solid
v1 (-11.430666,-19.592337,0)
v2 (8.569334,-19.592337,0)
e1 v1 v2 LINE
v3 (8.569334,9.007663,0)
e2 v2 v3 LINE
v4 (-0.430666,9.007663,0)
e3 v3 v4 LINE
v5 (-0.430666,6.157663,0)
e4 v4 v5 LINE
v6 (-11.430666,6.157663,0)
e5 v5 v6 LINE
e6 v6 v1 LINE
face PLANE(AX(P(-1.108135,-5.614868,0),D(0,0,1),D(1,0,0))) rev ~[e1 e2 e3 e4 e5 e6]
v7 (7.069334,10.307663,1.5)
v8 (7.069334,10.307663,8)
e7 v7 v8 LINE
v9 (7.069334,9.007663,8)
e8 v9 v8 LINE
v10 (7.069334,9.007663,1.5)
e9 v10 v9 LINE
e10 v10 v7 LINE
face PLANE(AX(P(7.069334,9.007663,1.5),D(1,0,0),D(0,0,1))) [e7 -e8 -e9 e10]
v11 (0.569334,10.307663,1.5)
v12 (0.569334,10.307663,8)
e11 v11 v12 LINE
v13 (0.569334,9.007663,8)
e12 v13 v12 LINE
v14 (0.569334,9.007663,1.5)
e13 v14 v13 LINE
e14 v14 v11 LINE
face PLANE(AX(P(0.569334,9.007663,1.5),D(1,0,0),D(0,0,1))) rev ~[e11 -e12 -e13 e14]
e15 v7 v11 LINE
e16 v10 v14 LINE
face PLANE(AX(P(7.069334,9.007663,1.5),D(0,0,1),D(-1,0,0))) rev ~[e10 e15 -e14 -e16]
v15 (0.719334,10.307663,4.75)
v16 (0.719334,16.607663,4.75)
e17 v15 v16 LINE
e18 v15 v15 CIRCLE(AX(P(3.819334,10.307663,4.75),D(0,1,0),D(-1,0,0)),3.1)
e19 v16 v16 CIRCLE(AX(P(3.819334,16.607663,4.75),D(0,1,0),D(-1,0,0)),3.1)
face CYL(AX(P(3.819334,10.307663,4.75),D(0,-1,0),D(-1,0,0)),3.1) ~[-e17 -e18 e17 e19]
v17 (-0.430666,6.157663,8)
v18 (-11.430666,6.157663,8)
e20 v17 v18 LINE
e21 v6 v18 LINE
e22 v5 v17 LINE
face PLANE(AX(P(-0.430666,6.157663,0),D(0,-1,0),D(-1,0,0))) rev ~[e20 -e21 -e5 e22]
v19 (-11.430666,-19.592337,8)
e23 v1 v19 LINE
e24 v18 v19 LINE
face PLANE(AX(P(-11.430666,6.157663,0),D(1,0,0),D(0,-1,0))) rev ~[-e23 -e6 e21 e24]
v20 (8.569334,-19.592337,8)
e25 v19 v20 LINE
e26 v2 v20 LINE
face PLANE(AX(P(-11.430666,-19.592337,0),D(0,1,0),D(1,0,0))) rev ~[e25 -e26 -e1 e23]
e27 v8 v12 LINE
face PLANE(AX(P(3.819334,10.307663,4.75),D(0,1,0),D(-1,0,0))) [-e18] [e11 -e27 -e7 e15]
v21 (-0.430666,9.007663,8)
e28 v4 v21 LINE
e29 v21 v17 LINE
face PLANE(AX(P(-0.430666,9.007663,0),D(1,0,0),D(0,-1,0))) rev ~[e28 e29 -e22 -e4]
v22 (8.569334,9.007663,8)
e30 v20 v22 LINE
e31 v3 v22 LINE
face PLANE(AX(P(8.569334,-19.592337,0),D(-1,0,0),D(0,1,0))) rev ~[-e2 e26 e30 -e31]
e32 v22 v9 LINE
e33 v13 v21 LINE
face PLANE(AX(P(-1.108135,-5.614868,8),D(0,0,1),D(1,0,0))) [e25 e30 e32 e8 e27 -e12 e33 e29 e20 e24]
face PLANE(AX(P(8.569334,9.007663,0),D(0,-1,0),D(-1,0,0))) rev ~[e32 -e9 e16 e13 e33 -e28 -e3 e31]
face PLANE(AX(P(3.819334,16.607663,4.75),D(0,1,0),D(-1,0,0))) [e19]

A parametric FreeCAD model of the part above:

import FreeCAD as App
import Part
import Sketcher


def add_polygon(sketch, points):
    """Adds a closed chain of lines whose ends are joined by coincident constraints."""
    first, n = sketch.GeometryCount, len(points)
    for a, b in zip(points, points[1:] + points[:1]):
        sketch.addGeometry(Part.LineSegment(App.Vector(*a, 0), App.Vector(*b, 0)), False)
    for i in range(n):
        sketch.addConstraint(Sketcher.Constraint("Coincident", first + i, 2, first + (i + 1) % n, 1))

doc = App.newDocument("Part")
body = doc.addObject("PartDesign::Body", "Body")

# Sketch on XY plane
sketch1 = body.newObject("Sketcher::SketchObject", "Sketch")
sketch1.AttachmentSupport = (doc.getObject("XY_Plane"), [""])
sketch1.MapMode = "FlatFace"
add_polygon(sketch1, [(-0.4, 6.2), (-11.4, 6.2), (-11.4, -19.6), (8.6, -19.6), (8.6, 9), (-0.4, 9)])  # lines 0-5
sketch1.addConstraint([
    Sketcher.Constraint("Horizontal", 0),
    Sketcher.Constraint("Vertical", 1),
    Sketcher.Constraint("Horizontal", 2),
    Sketcher.Constraint("Vertical", 3),
    Sketcher.Constraint("Horizontal", 4),
    Sketcher.Constraint("Vertical", 5),
    Sketcher.Constraint("DistanceX", 0, 2, 0, 1, 11.0),
    Sketcher.Constraint("DistanceX", 2, 1, 2, 2, 20.0),
    Sketcher.Constraint("DistanceY", 3, 1, 3, 2, 28.6),
    Sketcher.Constraint("DistanceY", 1, 2, 1, 1, 25.75),
    Sketcher.Constraint("DistanceX", 0, 2, -1, 1, 11.430666),
    Sketcher.Constraint("DistanceY", -1, 1, 0, 2, 6.157663),
])
pad1 = body.newObject("PartDesign::Pad", "Pad")
pad1.Profile = sketch1
pad1.Length = 8

# Sketch on XZ plane
sketch2 = body.newObject("Sketcher::SketchObject", "Sketch001")
sketch2.AttachmentSupport = (doc.getObject("XZ_Plane"), [""])
sketch2.MapMode = "FlatFace"
sketch2.AttachmentOffset = App.Placement(App.Vector(0, 0, -9.007663), App.Rotation())
add_polygon(sketch2, [(7, 8), (7, 2), (1, 2), (1, 8)])  # lines 0-3
sketch2.addConstraint([
    Sketcher.Constraint("Vertical", 0),
    Sketcher.Constraint("Horizontal", 1),
    Sketcher.Constraint("Vertical", 2),
    Sketcher.Constraint("Horizontal", 3),
    Sketcher.Constraint("Equal", 3, 0),
    Sketcher.Constraint("DistanceX", 1, 2, 1, 1, 6.5),
    Sketcher.Constraint("DistanceY", -1, 1, 2, 2, 8.0),
    Sketcher.Constraint("DistanceX", -1, 1, 0, 2, 7.069334),
])
pad2 = body.newObject("PartDesign::Pad", "Pad001")
pad2.Profile = sketch2
pad2.Length = 1.3
pad2.Reversed = True

# Sketch on XZ plane
sketch3 = body.newObject("Sketcher::SketchObject", "Sketch002")
sketch3.AttachmentSupport = (doc.getObject("XZ_Plane"), [""])
sketch3.MapMode = "FlatFace"
sketch3.AttachmentOffset = App.Placement(App.Vector(0, 0, -10.307663), App.Rotation())
sketch3.addGeometry(Part.Circle(App.Vector(3.8, 4.8, 0), App.Vector(0, 0, 1), 3.1), False)
sketch3.addConstraint([
    Sketcher.Constraint("Diameter", 0, 6.2),
    Sketcher.Constraint("DistanceY", -1, 1, 0, 3, 4.75),
    Sketcher.Constraint("DistanceX", -1, 1, 0, 3, 3.819334),
])
pad3 = body.newObject("PartDesign::Pad", "Pad002")
pad3.Profile = sketch3
pad3.Length = 6.3
pad3.Reversed = True

doc.recompute()
